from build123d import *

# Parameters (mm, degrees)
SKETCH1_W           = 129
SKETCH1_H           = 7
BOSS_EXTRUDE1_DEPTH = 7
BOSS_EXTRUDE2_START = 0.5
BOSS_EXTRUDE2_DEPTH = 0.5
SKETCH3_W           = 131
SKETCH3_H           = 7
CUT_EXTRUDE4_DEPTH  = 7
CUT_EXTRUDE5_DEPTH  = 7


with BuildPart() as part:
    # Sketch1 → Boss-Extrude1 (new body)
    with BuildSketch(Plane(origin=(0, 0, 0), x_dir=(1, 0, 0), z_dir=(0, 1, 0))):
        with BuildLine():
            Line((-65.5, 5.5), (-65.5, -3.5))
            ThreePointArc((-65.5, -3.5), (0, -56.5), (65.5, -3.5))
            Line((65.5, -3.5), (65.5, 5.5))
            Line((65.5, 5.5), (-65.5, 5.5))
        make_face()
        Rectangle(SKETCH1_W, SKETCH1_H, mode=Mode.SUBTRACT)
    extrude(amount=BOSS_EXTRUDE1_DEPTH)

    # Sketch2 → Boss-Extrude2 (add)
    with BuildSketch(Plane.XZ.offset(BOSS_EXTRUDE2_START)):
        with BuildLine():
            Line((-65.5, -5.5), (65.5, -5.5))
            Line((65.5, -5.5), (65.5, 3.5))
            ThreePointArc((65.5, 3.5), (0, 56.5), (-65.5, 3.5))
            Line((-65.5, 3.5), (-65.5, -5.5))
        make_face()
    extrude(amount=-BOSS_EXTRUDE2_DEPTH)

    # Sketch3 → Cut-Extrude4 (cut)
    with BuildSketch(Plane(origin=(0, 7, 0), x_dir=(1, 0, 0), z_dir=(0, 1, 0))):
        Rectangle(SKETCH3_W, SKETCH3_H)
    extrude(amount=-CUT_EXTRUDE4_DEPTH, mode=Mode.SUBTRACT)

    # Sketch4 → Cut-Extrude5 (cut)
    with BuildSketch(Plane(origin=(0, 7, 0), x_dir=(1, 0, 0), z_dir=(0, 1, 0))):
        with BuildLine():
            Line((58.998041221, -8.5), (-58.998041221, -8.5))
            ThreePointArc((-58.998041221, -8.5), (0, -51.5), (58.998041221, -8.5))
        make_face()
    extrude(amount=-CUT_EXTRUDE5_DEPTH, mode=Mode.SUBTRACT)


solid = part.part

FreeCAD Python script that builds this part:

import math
import FreeCAD as App
import Part
import Sketcher
from FreeCAD import Vector

doc = App.newDocument("Part")
params = doc.addObject("Spreadsheet::Sheet", "Params")
for row, (alias, value) in enumerate([
    ("sketch1_width", "131 mm"),
    ("sketch1_width2", "129 mm"),
    ("sketch1_height", "9 mm"),
    ("sketch1_height2", "7 mm"),
    ("pad1_length", "7 mm"),
    ("sketch2_width", "131 mm"),
    ("sketch2_height", "9 mm"),
    ("pad2_length", "0.5 mm"),
    ("sketch3_width", "131 mm"),
    ("sketch3_height", "7 mm"),
    ("pocket1_length", "7 mm"),
    ("pocket2_length", "7 mm"),
], start=1):
    params.set(f"A{row}", alias)
    params.set(f"B{row}", "=" + value)
    params.setAlias(f"B{row}", alias)

body = doc.addObject("PartDesign::Body", "Body")

# Sketch on XZ plane
sketch1 = body.newObject("Sketcher::SketchObject", "Sketch")
sketch1.AttachmentSupport = (doc.getObject("XZ_Plane"), [""])
sketch1.MapMode = "FlatFace"
sketch1.addGeometry(Part.LineSegment(Vector(-66, -6, 0), Vector(-66, 4, 0)), False)
sketch1.addGeometry(Part.ArcOfCircle(Part.Circle(Vector(0, -10, 0), Vector(0, 0, 1), 67), math.radians(12), math.radians(168)), False)
sketch1.addGeometry(Part.LineSegment(Vector(66, 4, 0), Vector(66, -6, 0)), False)
sketch1.addGeometry(Part.LineSegment(Vector(66, -6, 0), Vector(-66, -6, 0)), False)
sketch1.addGeometry(Part.LineSegment(Vector(64, 4, 0), Vector(-64, 4, 0)), False)
sketch1.addGeometry(Part.LineSegment(Vector(-64, 4, 0), Vector(-64, -4, 0)), False)
sketch1.addGeometry(Part.LineSegment(Vector(-64, -4, 0), Vector(64, -4, 0)), False)
sketch1.addGeometry(Part.LineSegment(Vector(64, -4, 0), Vector(64, 4, 0)), False)
sketch1.addConstraint(Sketcher.Constraint("Coincident", 0, 2, 1, 2))
sketch1.addConstraint(Sketcher.Constraint("Coincident", 1, 1, 2, 1))
sketch1.addConstraint(Sketcher.Constraint("Coincident", 2, 2, 3, 1))
sketch1.addConstraint(Sketcher.Constraint("Coincident", 3, 2, 0, 1))
sketch1.addConstraint(Sketcher.Constraint("Coincident", 4, 2, 5, 1))
sketch1.addConstraint(Sketcher.Constraint("Coincident", 5, 2, 6, 1))
sketch1.addConstraint(Sketcher.Constraint("Coincident", 6, 2, 7, 1))
sketch1.addConstraint(Sketcher.Constraint("Coincident", 7, 2, 4, 1))
sketch1.addConstraint(Sketcher.Constraint("Vertical", 0))
sketch1.addConstraint(Sketcher.Constraint("Vertical", 2))
sketch1.addConstraint(Sketcher.Constraint("Horizontal", 3))
sketch1.addConstraint(Sketcher.Constraint("Horizontal", 4))
sketch1.addConstraint(Sketcher.Constraint("Vertical", 5))
sketch1.addConstraint(Sketcher.Constraint("Horizontal", 6))
sketch1.addConstraint(Sketcher.Constraint("Vertical", 7))
sketch1.addConstraint(Sketcher.Constraint("Symmetric", 4, 2, 6, 2, -1, 1))
sketch1.addConstraint(Sketcher.Constraint("Symmetric", 0, 2, 1, 1, -2))
sketch1.addConstraint(Sketcher.Constraint("Horizontal", 1, 1, 4, 2))
sketch1.addConstraint(Sketcher.Constraint("DistanceX", 3, 2, 3, 1, 131.0))
sketch1.addConstraint(Sketcher.Constraint("DistanceX", 4, 2, 4, 1, 129.0))
sketch1.addConstraint(Sketcher.Constraint("DistanceY", 0, 1, 0, 2, 9.0))
sketch1.addConstraint(Sketcher.Constraint("DistanceY", 5, 2, 5, 1, 7.0))
sketch1.addConstraint(Sketcher.Constraint("Radius", 1, 66.974057))
sketch1.setExpression("Constraints[18]", "Params.sketch1_width")
sketch1.setExpression("Constraints[19]", "Params.sketch1_width2")
sketch1.setExpression("Constraints[20]", "Params.sketch1_height")
sketch1.setExpression("Constraints[21]", "Params.sketch1_height2")
pad1 = body.newObject("PartDesign::Pad", "Pad")
pad1.Profile = sketch1
pad1.setExpression("Length", "Params.pad1_length")
pad1.Reversed = True

# Sketch on XZ plane
sketch2 = body.newObject("Sketcher::SketchObject", "Sketch001")
sketch2.AttachmentSupport = (doc.getObject("XZ_Plane"), [""])
sketch2.MapMode = "FlatFace"
sketch2.AttachmentOffset = App.Placement(Vector(0, 0, 0.5), App.Rotation())
sketch2.addGeometry(Part.LineSegment(Vector(-66, -6, 0), Vector(66, -6, 0)), False)
sketch2.addGeometry(Part.LineSegment(Vector(66, -6, 0), Vector(66, 4, 0)), False)
sketch2.addGeometry(Part.ArcOfCircle(Part.Circle(Vector(0, -10, 0), Vector(0, 0, 1), 67), math.radians(12), math.radians(168)), False)
sketch2.addGeometry(Part.LineSegment(Vector(-66, 4, 0), Vector(-66, -6, 0)), False)
sketch2.addConstraint(Sketcher.Constraint("Coincident", 0, 2, 1, 1))
sketch2.addConstraint(Sketcher.Constraint("Coincident", 1, 2, 2, 1))
sketch2.addConstraint(Sketcher.Constraint("Coincident", 2, 2, 3, 1))
sketch2.addConstraint(Sketcher.Constraint("Coincident", 3, 2, 0, 1))
sketch2.addConstraint(Sketcher.Constraint("Horizontal", 0))
sketch2.addConstraint(Sketcher.Constraint("Vertical", 1))
sketch2.addConstraint(Sketcher.Constraint("Vertical", 3))
sketch2.addConstraint(Sketcher.Constraint("Symmetric", 1, 2, 2, 2, -2))
sketch2.addConstraint(Sketcher.Constraint("DistanceX", 0, 1, 0, 2, 131.0))
sketch2.addConstraint(Sketcher.Constraint("DistanceY", 1, 1, 1, 2, 9.0))
sketch2.addConstraint(Sketcher.Constraint("DistanceY", 0, 2, -1, 1, 5.5))
sketch2.addConstraint(Sketcher.Constraint("Radius", 2, 66.974057))
sketch2.setExpression("Constraints[8]", "Params.sketch2_width")
sketch2.setExpression("Constraints[9]", "Params.sketch2_height")
pad2 = body.newObject("PartDesign::Pad", "Pad001")
pad2.Profile = sketch2
pad2.setExpression("Length", "Params.pad2_length")
pad2.Reversed = True

# Sketch on XZ plane
sketch3 = body.newObject("Sketcher::SketchObject", "Sketch002")
sketch3.AttachmentSupport = (doc.getObject("XZ_Plane"), [""])
sketch3.MapMode = "FlatFace"
sketch3.AttachmentOffset = App.Placement(Vector(0, 0, -7), App.Rotation())
sketch3.addGeometry(Part.LineSegment(Vector(-66, -4, 0), Vector(-66, 4, 0)), False)
sketch3.addGeometry(Part.LineSegment(Vector(-66, 4, 0), Vector(66, 4, 0)), False)
sketch3.addGeometry(Part.LineSegment(Vector(66, 4, 0), Vector(66, -4, 0)), False)
sketch3.addGeometry(Part.LineSegment(Vector(66, -4, 0), Vector(-66, -4, 0)), False)
sketch3.addConstraint(Sketcher.Constraint("Coincident", 0, 2, 1, 1))
sketch3.addConstraint(Sketcher.Constraint("Coincident", 1, 2, 2, 1))
sketch3.addConstraint(Sketcher.Constraint("Coincident", 2, 2, 3, 1))
sketch3.addConstraint(Sketcher.Constraint("Coincident", 3, 2, 0, 1))
sketch3.addConstraint(Sketcher.Constraint("Vertical", 0))
sketch3.addConstraint(Sketcher.Constraint("Horizontal", 1))
sketch3.addConstraint(Sketcher.Constraint("Vertical", 2))
sketch3.addConstraint(Sketcher.Constraint("Horizontal", 3))
sketch3.addConstraint(Sketcher.Constraint("Symmetric", 0, 2, 2, 2, -1, 1))
sketch3.addConstraint(Sketcher.Constraint("DistanceX", 1, 1, 1, 2, 131.0))
sketch3.addConstraint(Sketcher.Constraint("DistanceY", 0, 1, 0, 2, 7.0))
sketch3.setExpression("Constraints[9]", "Params.sketch3_width")
sketch3.setExpression("Constraints[10]", "Params.sketch3_height")
pocket1 = body.newObject("PartDesign::Pocket", "Pocket")
pocket1.Profile = sketch3
pocket1.setExpression("Length", "Params.pocket1_length")
pocket1.Reversed = True

# Sketch on XZ plane
sketch4 = body.newObject("Sketcher::SketchObject", "Sketch003")
sketch4.AttachmentSupport = (doc.getObject("XZ_Plane"), [""])
sketch4.MapMode = "FlatFace"
sketch4.AttachmentOffset = App.Placement(Vector(0, 0, -7), App.Rotation())
sketch4.addGeometry(Part.LineSegment(Vector(59, 8, 0), Vector(-59, 8, 0)), False)
sketch4.addGeometry(Part.ArcOfCircle(Part.Circle(Vector(0, -10, 0), Vector(0, 0, 1), 62), math.radians(18), math.radians(162)), False)
sketch4.addConstraint(Sketcher.Constraint("Coincident", 0, 1, 1, 1))
sketch4.addConstraint(Sketcher.Constraint("Coincident", 1, 2, 0, 2))
sketch4.addConstraint(Sketcher.Constraint("Horizontal", 0))
sketch4.addConstraint(Sketcher.Constraint("PointOnObject", 1, 3, -2))
sketch4.addConstraint(Sketcher.Constraint("DistanceY", -1, 1, 0, 1, 8.5))
sketch4.addConstraint(Sketcher.Constraint("Radius", 1, 61.974057))
sketch4.addConstraint(Sketcher.Constraint("DistanceX", 0, 2, 0, 1, 117.996082))
pocket2 = body.newObject("PartDesign::Pocket", "Pocket001")
pocket2.Profile = sketch4
pocket2.setExpression("Length", "Params.pocket2_length")
pocket2.Reversed = True

doc.recompute()
